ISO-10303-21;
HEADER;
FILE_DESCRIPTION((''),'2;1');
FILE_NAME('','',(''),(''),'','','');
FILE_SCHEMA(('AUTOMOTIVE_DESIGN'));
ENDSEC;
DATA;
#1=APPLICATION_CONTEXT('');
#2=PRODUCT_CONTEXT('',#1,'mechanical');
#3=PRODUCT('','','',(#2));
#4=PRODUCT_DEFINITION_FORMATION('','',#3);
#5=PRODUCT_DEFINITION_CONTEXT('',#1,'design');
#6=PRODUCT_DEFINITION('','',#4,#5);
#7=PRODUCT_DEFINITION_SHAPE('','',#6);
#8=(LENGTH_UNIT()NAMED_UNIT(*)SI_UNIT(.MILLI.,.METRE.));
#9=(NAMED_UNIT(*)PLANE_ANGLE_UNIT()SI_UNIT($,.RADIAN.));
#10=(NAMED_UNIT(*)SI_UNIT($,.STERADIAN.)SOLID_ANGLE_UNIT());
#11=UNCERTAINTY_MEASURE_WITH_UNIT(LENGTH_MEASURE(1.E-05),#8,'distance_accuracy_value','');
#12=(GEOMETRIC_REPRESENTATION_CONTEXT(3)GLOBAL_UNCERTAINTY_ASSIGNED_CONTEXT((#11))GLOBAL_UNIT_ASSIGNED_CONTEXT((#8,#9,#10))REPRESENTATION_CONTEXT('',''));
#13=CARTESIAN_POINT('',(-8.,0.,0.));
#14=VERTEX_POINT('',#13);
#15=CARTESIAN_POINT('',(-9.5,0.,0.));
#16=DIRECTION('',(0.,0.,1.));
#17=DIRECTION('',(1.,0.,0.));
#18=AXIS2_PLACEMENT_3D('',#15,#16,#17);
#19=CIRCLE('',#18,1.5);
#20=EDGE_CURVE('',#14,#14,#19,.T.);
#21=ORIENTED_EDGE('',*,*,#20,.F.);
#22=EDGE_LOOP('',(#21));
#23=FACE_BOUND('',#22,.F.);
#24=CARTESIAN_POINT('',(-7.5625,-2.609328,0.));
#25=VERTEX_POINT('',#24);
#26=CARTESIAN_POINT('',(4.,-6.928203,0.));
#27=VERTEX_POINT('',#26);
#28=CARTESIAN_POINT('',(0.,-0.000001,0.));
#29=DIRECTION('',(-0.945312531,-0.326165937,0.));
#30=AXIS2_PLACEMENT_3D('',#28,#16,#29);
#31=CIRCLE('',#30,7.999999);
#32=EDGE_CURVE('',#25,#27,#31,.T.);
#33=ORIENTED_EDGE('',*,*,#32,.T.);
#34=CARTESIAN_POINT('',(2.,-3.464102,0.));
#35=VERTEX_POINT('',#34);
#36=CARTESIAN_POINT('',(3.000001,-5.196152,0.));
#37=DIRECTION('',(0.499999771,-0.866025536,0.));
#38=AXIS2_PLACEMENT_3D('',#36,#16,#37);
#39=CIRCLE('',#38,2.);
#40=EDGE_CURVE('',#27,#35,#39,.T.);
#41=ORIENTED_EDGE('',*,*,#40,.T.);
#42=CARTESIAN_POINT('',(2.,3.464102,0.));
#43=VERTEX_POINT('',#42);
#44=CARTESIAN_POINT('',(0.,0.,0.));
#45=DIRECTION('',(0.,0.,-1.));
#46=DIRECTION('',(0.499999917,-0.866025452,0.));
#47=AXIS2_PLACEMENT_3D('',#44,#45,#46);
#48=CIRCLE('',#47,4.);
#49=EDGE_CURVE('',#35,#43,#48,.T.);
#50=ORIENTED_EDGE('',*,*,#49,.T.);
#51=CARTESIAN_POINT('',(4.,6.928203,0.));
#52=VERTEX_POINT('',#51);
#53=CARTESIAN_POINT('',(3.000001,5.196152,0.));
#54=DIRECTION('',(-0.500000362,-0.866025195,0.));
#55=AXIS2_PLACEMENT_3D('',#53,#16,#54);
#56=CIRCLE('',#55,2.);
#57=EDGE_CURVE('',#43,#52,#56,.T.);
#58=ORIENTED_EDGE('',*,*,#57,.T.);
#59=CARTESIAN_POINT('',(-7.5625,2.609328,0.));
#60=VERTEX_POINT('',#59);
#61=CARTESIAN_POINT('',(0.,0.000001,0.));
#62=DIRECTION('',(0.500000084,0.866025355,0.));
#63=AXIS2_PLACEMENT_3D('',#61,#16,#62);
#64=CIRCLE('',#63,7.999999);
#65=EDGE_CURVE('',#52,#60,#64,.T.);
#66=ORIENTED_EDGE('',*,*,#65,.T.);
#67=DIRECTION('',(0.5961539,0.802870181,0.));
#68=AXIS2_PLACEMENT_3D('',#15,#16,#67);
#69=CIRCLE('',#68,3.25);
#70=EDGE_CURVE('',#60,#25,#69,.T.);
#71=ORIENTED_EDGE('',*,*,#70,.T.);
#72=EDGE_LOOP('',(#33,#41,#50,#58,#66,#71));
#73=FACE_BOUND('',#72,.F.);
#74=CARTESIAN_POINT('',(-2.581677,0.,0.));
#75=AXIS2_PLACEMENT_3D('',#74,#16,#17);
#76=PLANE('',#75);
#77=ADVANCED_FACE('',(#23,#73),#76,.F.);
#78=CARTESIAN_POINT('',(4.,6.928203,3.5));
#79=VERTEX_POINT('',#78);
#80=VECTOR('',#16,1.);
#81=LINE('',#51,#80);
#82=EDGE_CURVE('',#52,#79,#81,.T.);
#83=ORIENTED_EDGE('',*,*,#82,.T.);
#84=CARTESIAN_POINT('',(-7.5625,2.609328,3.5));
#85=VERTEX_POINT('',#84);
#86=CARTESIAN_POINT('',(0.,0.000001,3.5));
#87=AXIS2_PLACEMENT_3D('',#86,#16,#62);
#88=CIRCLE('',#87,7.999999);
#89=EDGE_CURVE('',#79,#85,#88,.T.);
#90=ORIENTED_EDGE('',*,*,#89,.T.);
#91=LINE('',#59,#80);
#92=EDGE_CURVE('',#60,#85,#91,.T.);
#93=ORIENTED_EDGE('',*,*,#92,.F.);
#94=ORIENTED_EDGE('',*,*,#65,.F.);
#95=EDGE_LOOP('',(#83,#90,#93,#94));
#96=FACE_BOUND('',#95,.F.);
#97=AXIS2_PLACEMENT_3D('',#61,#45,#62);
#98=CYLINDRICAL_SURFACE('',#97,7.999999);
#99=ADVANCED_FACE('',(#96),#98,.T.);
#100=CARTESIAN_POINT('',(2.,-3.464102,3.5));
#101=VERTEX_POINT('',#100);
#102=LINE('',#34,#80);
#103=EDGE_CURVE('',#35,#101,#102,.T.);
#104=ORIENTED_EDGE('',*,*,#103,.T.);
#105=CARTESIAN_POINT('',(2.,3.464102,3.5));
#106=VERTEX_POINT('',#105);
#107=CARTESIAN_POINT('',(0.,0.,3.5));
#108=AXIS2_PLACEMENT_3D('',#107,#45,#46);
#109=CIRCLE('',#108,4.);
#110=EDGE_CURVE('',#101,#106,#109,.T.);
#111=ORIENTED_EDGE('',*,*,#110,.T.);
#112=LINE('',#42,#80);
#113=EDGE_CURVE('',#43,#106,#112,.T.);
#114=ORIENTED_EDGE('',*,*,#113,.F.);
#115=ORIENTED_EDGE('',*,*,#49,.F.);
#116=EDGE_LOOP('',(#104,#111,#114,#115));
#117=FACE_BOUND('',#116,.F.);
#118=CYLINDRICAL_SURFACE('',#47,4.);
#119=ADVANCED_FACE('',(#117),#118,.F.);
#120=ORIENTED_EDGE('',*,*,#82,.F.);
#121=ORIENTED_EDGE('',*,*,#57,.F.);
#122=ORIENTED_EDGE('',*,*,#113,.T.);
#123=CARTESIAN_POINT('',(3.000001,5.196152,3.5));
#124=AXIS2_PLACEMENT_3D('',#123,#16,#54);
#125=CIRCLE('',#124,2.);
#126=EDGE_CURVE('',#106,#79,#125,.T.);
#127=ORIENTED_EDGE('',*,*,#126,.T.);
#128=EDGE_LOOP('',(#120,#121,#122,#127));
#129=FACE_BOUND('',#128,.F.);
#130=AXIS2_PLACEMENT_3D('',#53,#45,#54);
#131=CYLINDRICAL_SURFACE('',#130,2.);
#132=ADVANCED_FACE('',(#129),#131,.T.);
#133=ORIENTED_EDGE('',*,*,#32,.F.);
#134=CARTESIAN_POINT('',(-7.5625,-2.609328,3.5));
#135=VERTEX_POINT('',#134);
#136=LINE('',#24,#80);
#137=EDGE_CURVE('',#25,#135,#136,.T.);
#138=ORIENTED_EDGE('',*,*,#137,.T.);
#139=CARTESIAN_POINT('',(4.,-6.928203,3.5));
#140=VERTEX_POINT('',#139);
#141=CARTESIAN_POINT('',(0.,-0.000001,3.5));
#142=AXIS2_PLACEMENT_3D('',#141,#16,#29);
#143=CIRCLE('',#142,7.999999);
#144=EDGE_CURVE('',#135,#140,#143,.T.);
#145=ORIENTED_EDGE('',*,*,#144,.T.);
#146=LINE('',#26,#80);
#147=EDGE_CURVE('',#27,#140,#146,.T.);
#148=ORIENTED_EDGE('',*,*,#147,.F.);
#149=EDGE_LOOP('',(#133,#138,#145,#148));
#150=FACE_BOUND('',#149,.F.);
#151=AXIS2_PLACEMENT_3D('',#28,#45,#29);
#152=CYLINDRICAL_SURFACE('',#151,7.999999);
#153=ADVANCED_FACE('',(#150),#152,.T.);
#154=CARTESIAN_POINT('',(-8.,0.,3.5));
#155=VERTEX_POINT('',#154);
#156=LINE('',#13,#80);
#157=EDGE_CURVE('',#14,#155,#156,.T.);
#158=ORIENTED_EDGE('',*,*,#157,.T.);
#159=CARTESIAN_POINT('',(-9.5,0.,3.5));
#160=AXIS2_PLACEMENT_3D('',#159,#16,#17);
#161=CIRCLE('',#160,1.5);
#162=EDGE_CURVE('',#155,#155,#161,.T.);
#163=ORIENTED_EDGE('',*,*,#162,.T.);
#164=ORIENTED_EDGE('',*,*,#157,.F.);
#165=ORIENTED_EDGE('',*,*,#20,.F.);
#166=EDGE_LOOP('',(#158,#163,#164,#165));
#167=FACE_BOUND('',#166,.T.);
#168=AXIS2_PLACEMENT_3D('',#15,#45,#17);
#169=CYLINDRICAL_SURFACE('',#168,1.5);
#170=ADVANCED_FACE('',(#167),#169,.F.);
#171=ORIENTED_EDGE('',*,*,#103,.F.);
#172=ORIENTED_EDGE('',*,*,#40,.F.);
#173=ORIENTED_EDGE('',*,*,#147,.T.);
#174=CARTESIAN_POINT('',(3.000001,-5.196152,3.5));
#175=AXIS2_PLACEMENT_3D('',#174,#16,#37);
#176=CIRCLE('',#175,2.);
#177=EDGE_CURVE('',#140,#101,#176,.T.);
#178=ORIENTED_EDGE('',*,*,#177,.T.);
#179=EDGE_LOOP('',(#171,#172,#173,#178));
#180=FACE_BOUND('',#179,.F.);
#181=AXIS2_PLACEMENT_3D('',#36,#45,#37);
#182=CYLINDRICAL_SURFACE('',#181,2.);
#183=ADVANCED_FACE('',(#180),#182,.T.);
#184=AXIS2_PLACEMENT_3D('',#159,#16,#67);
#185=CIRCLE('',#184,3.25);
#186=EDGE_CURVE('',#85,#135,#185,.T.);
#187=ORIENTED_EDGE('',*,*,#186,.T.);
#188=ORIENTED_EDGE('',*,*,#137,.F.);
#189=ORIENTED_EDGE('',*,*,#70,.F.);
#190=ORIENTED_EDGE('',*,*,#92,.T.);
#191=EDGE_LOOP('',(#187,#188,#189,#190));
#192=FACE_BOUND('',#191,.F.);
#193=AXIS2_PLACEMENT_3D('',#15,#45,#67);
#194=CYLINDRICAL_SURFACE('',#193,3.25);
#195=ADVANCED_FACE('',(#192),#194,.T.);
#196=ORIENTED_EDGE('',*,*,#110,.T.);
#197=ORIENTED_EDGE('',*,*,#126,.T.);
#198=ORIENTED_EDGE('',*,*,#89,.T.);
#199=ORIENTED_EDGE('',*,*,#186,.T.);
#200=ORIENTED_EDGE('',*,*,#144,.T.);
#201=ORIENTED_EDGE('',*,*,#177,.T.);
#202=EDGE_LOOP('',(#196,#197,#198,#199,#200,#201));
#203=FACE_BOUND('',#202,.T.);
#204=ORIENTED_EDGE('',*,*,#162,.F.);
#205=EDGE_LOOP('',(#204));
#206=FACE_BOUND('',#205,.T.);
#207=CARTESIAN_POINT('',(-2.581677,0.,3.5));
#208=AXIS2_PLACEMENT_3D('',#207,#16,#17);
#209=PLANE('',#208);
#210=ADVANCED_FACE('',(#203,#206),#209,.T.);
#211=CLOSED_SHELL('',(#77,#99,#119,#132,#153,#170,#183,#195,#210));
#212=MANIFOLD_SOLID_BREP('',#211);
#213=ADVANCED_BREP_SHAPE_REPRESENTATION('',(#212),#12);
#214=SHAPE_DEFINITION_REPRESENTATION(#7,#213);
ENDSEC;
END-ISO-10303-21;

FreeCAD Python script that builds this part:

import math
import FreeCAD as App
import Part
import Sketcher

V = App.Vector
Q = App.Units.Quantity

doc = App.newDocument("Part")
body = doc.addObject("PartDesign::Body", "Body")

# Sketch on XY plane
sketch1 = doc.addObject("Sketcher::SketchObject", "Sketch")
body.addObject(sketch1)
sketch1.AttachmentSupport = (doc.XY_Plane, [""])
sketch1.MapMode = "FlatFace"
sketch1.addGeometry([
    Part.ArcOfCircle(Part.Circle(V(0, 0, 0), V(0, 0, 1), 8), math.radians(60), math.radians(161)),  # 0
    Part.ArcOfCircle(Part.Circle(V(-9.5, 0, 0), V(0, 0, 1), 3.2), math.radians(53), math.radians(307)),  # 1
    Part.ArcOfCircle(Part.Circle(V(0, 0, 0), V(0, 0, 1), 8), math.radians(-161), math.radians(-60)),  # 2
    Part.ArcOfCircle(Part.Circle(V(3, -5.2, 0), V(0, 0, 1), 2), math.radians(-60), math.radians(120)),  # 3
    Part.ArcOfCircle(Part.Circle(V(0, 0, 0), V(0, 0, 1), 4), math.radians(60), math.radians(300)),  # 4
    Part.ArcOfCircle(Part.Circle(V(3, 5.2, 0), V(0, 0, 1), 2), math.radians(-120), math.radians(60)),  # 5
    Part.Circle(V(-9.5, 0, 0), V(0, 0, 1), 1.5),  # 6
], False)
sketch1.addConstraint([
    Sketcher.Constraint("Coincident", 0, 2, 1, 1),
    Sketcher.Constraint("Coincident", 1, 2, 2, 1),
    Sketcher.Constraint("Tangent", 2, 2, 3, 1),
    Sketcher.Constraint("Tangent", 3, 2, 4, 2),
    Sketcher.Constraint("Tangent", 4, 1, 5, 1),
    Sketcher.Constraint("Tangent", 5, 2, 0, 1),
    Sketcher.Constraint("Coincident", 0, 3, -1, 1),
    Sketcher.Constraint("Coincident", 2, 3, -1, 1),
    Sketcher.Constraint("Coincident", 4, 3, -1, 1),
    Sketcher.Constraint("Coincident", 6, 3, 1, 3),
    Sketcher.Constraint("Equal", 0, 2),
    Sketcher.Constraint("PointOnObject", 1, 3, -1),
    Sketcher.Constraint("Vertical", 3, 3, 5, 3),
    Sketcher.Constraint("Diameter", 6, Q("3 mm")),
    Sketcher.Constraint("Radius", 0, Q("7.999999 mm")),
    Sketcher.Constraint("Radius", 3, Q("2 mm")),
    Sketcher.Constraint("Radius", 1, Q("3.25 mm")),
    Sketcher.Constraint("DistanceX", -1, 1, 3, 3, Q("3.000001 mm")),
    Sketcher.Constraint("DistanceX", 1, 3, -1, 1, Q("9.5 mm")),
])
pad1 = doc.addObject("PartDesign::Pad", "Pad")
body.addObject(pad1)
pad1.Profile = sketch1
pad1.Length = 3.5

doc.recompute()
